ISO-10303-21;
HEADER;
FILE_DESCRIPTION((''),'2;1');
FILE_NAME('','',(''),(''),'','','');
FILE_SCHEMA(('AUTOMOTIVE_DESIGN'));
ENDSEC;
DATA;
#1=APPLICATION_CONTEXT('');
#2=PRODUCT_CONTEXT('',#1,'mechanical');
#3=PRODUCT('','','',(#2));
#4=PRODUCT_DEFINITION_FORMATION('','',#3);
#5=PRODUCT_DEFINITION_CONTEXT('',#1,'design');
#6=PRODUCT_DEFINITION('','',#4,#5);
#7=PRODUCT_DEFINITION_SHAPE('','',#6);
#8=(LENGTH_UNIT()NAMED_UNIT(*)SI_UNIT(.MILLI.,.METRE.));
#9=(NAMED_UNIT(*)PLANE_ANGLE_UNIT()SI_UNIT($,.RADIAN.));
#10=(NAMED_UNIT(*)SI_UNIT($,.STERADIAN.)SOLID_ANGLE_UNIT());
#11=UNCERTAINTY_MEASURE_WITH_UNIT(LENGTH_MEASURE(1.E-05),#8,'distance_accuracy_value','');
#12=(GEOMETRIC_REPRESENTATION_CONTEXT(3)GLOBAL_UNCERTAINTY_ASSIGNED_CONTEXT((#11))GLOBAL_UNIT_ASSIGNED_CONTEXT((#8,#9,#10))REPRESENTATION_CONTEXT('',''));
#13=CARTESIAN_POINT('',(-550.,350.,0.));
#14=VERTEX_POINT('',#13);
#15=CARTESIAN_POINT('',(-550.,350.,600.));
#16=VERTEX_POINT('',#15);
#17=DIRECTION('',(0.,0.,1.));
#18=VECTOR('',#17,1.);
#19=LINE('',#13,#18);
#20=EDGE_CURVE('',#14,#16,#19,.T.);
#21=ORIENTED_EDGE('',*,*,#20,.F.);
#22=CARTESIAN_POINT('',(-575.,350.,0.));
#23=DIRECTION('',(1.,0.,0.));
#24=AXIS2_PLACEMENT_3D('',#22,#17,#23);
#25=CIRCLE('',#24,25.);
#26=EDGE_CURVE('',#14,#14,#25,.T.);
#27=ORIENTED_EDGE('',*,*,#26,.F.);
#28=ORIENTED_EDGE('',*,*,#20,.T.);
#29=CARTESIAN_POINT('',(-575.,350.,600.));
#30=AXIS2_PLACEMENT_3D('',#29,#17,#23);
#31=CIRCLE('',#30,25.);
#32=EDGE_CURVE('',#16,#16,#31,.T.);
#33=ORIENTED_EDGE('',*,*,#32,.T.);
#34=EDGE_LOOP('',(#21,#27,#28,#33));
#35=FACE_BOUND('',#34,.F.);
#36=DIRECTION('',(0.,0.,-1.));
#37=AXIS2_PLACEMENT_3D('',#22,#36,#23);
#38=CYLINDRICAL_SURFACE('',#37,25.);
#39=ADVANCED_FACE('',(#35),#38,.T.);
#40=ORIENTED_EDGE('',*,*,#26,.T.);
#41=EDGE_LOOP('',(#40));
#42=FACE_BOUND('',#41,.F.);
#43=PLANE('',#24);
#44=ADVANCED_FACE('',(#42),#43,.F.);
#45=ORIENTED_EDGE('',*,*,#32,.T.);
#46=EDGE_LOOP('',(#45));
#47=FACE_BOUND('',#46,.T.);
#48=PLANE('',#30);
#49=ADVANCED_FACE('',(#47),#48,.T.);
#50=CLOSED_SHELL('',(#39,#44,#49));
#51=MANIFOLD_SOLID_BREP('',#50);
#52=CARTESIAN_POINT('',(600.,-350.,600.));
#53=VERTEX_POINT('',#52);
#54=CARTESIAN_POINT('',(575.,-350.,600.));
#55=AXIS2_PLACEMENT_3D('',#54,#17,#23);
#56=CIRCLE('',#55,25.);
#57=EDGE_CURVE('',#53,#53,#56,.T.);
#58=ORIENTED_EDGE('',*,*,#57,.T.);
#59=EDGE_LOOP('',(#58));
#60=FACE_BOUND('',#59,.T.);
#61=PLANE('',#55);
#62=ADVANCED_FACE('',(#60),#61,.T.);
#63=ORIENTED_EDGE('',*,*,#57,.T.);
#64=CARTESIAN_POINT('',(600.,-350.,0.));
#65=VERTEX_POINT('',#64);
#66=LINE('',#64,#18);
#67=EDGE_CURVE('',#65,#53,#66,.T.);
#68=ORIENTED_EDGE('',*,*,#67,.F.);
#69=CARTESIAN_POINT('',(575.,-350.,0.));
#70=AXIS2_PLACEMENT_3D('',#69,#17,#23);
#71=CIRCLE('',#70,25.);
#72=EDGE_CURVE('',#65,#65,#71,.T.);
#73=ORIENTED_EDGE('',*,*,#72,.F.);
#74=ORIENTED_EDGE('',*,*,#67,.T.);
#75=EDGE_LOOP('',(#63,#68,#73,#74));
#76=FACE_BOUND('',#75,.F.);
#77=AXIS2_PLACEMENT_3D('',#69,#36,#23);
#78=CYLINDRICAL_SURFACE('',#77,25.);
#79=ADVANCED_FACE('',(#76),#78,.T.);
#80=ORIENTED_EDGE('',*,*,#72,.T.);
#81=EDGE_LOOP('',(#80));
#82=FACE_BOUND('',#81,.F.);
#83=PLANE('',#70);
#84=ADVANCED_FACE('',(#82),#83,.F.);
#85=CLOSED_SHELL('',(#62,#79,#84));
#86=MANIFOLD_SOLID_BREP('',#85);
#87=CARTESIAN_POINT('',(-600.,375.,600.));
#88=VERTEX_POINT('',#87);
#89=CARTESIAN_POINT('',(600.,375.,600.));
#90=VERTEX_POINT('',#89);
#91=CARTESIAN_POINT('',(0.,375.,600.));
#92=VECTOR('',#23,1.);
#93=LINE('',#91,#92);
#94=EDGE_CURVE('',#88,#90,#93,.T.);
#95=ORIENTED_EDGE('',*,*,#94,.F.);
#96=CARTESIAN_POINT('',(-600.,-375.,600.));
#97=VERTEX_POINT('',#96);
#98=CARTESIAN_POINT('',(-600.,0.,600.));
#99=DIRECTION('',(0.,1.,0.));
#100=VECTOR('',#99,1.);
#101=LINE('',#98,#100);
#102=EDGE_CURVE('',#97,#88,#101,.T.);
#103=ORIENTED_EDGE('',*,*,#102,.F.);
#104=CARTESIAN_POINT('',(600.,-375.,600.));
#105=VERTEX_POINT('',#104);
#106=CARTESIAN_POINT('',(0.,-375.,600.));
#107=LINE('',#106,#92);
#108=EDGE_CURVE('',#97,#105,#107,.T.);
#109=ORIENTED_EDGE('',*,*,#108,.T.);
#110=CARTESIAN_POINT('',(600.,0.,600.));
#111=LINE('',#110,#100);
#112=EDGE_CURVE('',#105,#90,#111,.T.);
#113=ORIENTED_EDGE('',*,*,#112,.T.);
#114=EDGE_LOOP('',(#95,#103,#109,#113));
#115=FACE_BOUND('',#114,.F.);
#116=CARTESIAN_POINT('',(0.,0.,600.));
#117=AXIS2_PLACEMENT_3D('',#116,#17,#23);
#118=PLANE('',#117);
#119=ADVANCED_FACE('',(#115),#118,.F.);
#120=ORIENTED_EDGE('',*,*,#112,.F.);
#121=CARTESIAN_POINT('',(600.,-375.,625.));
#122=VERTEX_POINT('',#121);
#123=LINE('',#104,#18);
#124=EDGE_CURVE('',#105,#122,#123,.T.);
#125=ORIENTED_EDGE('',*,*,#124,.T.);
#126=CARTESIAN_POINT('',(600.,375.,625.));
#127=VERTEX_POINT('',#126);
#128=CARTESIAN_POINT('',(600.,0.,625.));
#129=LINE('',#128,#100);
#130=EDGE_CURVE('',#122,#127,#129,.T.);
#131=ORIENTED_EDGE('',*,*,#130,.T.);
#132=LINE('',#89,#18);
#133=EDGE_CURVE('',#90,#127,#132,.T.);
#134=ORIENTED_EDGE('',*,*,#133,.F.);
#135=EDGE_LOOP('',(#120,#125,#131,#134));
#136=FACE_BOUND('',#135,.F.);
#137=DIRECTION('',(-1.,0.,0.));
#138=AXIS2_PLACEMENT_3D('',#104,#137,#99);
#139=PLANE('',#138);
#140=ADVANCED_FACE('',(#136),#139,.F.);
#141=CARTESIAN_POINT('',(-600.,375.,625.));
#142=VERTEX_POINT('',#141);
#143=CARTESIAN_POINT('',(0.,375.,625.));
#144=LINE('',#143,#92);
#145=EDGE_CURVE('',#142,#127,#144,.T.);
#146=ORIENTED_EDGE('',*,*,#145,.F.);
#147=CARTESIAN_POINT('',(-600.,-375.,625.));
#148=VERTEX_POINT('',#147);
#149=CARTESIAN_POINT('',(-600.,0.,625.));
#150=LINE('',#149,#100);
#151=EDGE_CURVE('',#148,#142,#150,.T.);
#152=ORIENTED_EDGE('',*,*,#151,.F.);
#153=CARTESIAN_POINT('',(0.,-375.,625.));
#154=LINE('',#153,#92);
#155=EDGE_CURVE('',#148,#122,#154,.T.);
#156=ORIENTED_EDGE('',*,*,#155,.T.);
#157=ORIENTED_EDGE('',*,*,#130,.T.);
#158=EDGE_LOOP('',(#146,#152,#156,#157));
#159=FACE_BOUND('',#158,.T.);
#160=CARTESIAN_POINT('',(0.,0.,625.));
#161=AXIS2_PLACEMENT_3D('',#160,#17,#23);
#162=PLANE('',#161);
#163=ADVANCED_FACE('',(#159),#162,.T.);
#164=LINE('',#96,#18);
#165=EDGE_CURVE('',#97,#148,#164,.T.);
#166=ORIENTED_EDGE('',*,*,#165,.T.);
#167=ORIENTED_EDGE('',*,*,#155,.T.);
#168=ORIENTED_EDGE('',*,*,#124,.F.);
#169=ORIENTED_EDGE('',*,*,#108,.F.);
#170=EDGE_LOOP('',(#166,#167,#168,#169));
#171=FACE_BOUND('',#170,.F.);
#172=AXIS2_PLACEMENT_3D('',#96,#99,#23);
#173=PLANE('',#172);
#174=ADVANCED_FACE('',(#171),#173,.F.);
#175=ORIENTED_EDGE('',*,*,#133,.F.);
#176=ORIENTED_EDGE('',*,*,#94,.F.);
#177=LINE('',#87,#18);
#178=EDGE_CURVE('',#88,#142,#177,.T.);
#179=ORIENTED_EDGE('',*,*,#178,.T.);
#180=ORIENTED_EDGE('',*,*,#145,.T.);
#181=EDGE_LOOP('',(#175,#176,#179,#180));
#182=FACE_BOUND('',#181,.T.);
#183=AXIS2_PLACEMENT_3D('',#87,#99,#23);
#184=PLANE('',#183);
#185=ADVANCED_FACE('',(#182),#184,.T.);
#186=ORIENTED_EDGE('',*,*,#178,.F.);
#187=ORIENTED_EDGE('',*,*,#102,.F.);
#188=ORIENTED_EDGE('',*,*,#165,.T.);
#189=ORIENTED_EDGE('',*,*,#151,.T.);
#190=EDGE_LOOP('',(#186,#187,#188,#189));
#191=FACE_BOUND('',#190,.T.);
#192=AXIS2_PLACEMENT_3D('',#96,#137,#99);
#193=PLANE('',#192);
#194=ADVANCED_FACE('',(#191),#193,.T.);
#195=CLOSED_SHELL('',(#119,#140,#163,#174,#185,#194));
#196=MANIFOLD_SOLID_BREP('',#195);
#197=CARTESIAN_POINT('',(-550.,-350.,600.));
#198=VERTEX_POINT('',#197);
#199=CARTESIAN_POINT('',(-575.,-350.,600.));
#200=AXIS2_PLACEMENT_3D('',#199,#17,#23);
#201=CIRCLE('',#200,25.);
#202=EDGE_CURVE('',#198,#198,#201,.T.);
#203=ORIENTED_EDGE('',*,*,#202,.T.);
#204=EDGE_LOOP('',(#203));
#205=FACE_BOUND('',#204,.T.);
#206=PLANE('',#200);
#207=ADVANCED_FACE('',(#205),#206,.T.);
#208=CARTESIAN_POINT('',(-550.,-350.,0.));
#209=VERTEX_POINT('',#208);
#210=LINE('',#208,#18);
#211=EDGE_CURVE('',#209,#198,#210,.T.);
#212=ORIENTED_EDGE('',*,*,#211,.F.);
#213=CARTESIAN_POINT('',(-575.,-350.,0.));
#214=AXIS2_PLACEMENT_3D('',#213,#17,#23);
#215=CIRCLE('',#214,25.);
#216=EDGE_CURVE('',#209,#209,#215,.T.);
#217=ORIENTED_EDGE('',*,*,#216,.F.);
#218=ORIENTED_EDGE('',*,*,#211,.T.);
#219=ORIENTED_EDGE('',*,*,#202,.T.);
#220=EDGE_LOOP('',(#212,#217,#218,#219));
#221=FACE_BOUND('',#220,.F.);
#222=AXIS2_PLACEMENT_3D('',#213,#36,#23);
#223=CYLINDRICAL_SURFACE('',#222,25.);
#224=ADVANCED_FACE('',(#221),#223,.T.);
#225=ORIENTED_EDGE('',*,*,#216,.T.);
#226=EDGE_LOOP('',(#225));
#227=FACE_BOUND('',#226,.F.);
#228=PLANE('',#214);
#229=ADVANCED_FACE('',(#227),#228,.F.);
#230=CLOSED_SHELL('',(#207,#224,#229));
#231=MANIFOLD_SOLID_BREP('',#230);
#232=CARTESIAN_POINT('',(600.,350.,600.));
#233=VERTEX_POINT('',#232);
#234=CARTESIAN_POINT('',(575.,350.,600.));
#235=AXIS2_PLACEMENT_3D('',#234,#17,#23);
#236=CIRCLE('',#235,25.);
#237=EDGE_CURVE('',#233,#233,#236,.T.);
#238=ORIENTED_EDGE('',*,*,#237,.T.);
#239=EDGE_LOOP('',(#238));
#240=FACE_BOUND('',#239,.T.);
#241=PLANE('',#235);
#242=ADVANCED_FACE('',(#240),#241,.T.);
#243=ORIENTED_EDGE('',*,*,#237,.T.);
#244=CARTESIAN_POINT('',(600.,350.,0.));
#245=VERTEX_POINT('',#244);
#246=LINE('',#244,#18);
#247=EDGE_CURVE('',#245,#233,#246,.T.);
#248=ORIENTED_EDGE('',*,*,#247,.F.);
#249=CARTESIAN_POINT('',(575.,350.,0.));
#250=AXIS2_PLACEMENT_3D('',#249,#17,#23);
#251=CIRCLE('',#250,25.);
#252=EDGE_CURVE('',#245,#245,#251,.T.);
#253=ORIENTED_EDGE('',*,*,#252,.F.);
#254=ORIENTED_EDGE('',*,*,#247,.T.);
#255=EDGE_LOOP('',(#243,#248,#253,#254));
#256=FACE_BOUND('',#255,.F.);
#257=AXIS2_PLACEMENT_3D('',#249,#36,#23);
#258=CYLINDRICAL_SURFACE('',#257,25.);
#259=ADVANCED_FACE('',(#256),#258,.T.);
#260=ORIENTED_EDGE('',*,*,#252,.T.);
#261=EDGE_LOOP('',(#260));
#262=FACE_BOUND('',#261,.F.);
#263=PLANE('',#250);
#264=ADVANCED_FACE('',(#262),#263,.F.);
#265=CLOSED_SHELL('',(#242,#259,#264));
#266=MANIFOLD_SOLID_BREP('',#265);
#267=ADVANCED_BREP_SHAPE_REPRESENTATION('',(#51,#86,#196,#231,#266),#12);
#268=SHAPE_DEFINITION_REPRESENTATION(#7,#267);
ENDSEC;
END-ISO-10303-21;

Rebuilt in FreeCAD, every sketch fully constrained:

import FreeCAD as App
import Part
import Sketcher
Q = App.Units.Quantity


def add_polygon(sketch, points):
    """Adds a closed chain of lines whose ends are joined by coincident constraints."""
    first, n = sketch.GeometryCount, len(points)
    for a, b in zip(points, points[1:] + points[:1]):
        sketch.addGeometry(Part.LineSegment(App.Vector(*a, 0), App.Vector(*b, 0)), False)
    for i in range(n):
        sketch.addConstraint(Sketcher.Constraint("Coincident", first + i, 2, first + (i + 1) % n, 1))

doc = App.newDocument("Part")
params = doc.addObject("Spreadsheet::Sheet", "Params")
for row, (alias, value) in enumerate([
    ("sketch1_diameter", "50 mm"),
    ("pad1_length", "600 mm"),
    ("sketch2_width", "1200 mm"),
    ("sketch2_height", "750 mm"),
    ("pad2_length", "25 mm"),
], start=1):
    params.set(f"A{row}", alias)
    params.set(f"B{row}", "=" + value)
    params.setAlias(f"B{row}", alias)

body = doc.addObject("PartDesign::Body", "Body")
body.AllowCompound = True

sketch1 = body.newObject("Sketcher::SketchObject", "Sketch")
sketch1.AttachmentSupport = (doc.getObject("XY_Plane"), [""])
sketch1.MapMode = "FlatFace"
sketch1.addGeometry(Part.Circle(App.Vector(-575, 350, 0), App.Vector(0, 0, 1), 25), False)
sketch1.addGeometry(Part.Circle(App.Vector(-575, -350, 0), App.Vector(0, 0, 1), 25), False)
sketch1.addGeometry(Part.Circle(App.Vector(575, -350, 0), App.Vector(0, 0, 1), 25), False)
sketch1.addGeometry(Part.Circle(App.Vector(575, 350, 0), App.Vector(0, 0, 1), 25), False)
sketch1.addConstraint(Sketcher.Constraint("Equal", 0, 1))
sketch1.addConstraint(Sketcher.Constraint("Equal", 1, 2))
sketch1.addConstraint(Sketcher.Constraint("Equal", 2, 3))
sketch1.addConstraint(Sketcher.Constraint("Symmetric", 0, 3, 2, 3, -1, 1))
sketch1.addConstraint(Sketcher.Constraint("Symmetric", 1, 3, 3, 3, -1, 1))
sketch1.addConstraint(Sketcher.Constraint("Symmetric", 1, 3, 2, 3, -2))
sketch1.addConstraint(Sketcher.Constraint("Diameter", 0, Q("50 mm")))
sketch1.addConstraint(Sketcher.Constraint("DistanceX", 0, 3, -1, 1, Q("575 mm")))
sketch1.addConstraint(Sketcher.Constraint("DistanceY", -1, 1, 0, 3, Q("350 mm")))
sketch1.setExpression("Constraints[6]", "Params.sketch1_diameter")
pad1 = body.newObject("PartDesign::Pad", "Pad")
pad1.Profile = sketch1
pad1.setExpression("Length", "Params.pad1_length")
body2 = doc.addObject("PartDesign::Body", "Body001")

sketch2 = body2.newObject("Sketcher::SketchObject", "Sketch001")
sketch2.AttachmentSupport = (doc.getObject("XY_Plane001"), [""])
sketch2.MapMode = "FlatFace"
sketch2.AttachmentOffset = App.Placement(App.Vector(0, 0, 600), App.Rotation())
add_polygon(sketch2, [(-600, 375), (-600, -375), (600, -375), (600, 375)])
sketch2.addConstraint(Sketcher.Constraint("Vertical", 0))
sketch2.addConstraint(Sketcher.Constraint("Horizontal", 1))
sketch2.addConstraint(Sketcher.Constraint("Vertical", 2))
sketch2.addConstraint(Sketcher.Constraint("Horizontal", 3))
sketch2.addConstraint(Sketcher.Constraint("Symmetric", 0, 2, 2, 2, -1, 1))
sketch2.addConstraint(Sketcher.Constraint("DistanceX", 1, 1, 1, 2, Q("1200 mm")))
sketch2.addConstraint(Sketcher.Constraint("DistanceY", 0, 2, 0, 1, Q("750 mm")))
sketch2.setExpression("Constraints[9]", "Params.sketch2_width")
sketch2.setExpression("Constraints[10]", "Params.sketch2_height")
pad2 = body2.newObject("PartDesign::Pad", "Pad001")
pad2.Profile = sketch2
pad2.setExpression("Length", "Params.pad2_length")

doc.recompute()
